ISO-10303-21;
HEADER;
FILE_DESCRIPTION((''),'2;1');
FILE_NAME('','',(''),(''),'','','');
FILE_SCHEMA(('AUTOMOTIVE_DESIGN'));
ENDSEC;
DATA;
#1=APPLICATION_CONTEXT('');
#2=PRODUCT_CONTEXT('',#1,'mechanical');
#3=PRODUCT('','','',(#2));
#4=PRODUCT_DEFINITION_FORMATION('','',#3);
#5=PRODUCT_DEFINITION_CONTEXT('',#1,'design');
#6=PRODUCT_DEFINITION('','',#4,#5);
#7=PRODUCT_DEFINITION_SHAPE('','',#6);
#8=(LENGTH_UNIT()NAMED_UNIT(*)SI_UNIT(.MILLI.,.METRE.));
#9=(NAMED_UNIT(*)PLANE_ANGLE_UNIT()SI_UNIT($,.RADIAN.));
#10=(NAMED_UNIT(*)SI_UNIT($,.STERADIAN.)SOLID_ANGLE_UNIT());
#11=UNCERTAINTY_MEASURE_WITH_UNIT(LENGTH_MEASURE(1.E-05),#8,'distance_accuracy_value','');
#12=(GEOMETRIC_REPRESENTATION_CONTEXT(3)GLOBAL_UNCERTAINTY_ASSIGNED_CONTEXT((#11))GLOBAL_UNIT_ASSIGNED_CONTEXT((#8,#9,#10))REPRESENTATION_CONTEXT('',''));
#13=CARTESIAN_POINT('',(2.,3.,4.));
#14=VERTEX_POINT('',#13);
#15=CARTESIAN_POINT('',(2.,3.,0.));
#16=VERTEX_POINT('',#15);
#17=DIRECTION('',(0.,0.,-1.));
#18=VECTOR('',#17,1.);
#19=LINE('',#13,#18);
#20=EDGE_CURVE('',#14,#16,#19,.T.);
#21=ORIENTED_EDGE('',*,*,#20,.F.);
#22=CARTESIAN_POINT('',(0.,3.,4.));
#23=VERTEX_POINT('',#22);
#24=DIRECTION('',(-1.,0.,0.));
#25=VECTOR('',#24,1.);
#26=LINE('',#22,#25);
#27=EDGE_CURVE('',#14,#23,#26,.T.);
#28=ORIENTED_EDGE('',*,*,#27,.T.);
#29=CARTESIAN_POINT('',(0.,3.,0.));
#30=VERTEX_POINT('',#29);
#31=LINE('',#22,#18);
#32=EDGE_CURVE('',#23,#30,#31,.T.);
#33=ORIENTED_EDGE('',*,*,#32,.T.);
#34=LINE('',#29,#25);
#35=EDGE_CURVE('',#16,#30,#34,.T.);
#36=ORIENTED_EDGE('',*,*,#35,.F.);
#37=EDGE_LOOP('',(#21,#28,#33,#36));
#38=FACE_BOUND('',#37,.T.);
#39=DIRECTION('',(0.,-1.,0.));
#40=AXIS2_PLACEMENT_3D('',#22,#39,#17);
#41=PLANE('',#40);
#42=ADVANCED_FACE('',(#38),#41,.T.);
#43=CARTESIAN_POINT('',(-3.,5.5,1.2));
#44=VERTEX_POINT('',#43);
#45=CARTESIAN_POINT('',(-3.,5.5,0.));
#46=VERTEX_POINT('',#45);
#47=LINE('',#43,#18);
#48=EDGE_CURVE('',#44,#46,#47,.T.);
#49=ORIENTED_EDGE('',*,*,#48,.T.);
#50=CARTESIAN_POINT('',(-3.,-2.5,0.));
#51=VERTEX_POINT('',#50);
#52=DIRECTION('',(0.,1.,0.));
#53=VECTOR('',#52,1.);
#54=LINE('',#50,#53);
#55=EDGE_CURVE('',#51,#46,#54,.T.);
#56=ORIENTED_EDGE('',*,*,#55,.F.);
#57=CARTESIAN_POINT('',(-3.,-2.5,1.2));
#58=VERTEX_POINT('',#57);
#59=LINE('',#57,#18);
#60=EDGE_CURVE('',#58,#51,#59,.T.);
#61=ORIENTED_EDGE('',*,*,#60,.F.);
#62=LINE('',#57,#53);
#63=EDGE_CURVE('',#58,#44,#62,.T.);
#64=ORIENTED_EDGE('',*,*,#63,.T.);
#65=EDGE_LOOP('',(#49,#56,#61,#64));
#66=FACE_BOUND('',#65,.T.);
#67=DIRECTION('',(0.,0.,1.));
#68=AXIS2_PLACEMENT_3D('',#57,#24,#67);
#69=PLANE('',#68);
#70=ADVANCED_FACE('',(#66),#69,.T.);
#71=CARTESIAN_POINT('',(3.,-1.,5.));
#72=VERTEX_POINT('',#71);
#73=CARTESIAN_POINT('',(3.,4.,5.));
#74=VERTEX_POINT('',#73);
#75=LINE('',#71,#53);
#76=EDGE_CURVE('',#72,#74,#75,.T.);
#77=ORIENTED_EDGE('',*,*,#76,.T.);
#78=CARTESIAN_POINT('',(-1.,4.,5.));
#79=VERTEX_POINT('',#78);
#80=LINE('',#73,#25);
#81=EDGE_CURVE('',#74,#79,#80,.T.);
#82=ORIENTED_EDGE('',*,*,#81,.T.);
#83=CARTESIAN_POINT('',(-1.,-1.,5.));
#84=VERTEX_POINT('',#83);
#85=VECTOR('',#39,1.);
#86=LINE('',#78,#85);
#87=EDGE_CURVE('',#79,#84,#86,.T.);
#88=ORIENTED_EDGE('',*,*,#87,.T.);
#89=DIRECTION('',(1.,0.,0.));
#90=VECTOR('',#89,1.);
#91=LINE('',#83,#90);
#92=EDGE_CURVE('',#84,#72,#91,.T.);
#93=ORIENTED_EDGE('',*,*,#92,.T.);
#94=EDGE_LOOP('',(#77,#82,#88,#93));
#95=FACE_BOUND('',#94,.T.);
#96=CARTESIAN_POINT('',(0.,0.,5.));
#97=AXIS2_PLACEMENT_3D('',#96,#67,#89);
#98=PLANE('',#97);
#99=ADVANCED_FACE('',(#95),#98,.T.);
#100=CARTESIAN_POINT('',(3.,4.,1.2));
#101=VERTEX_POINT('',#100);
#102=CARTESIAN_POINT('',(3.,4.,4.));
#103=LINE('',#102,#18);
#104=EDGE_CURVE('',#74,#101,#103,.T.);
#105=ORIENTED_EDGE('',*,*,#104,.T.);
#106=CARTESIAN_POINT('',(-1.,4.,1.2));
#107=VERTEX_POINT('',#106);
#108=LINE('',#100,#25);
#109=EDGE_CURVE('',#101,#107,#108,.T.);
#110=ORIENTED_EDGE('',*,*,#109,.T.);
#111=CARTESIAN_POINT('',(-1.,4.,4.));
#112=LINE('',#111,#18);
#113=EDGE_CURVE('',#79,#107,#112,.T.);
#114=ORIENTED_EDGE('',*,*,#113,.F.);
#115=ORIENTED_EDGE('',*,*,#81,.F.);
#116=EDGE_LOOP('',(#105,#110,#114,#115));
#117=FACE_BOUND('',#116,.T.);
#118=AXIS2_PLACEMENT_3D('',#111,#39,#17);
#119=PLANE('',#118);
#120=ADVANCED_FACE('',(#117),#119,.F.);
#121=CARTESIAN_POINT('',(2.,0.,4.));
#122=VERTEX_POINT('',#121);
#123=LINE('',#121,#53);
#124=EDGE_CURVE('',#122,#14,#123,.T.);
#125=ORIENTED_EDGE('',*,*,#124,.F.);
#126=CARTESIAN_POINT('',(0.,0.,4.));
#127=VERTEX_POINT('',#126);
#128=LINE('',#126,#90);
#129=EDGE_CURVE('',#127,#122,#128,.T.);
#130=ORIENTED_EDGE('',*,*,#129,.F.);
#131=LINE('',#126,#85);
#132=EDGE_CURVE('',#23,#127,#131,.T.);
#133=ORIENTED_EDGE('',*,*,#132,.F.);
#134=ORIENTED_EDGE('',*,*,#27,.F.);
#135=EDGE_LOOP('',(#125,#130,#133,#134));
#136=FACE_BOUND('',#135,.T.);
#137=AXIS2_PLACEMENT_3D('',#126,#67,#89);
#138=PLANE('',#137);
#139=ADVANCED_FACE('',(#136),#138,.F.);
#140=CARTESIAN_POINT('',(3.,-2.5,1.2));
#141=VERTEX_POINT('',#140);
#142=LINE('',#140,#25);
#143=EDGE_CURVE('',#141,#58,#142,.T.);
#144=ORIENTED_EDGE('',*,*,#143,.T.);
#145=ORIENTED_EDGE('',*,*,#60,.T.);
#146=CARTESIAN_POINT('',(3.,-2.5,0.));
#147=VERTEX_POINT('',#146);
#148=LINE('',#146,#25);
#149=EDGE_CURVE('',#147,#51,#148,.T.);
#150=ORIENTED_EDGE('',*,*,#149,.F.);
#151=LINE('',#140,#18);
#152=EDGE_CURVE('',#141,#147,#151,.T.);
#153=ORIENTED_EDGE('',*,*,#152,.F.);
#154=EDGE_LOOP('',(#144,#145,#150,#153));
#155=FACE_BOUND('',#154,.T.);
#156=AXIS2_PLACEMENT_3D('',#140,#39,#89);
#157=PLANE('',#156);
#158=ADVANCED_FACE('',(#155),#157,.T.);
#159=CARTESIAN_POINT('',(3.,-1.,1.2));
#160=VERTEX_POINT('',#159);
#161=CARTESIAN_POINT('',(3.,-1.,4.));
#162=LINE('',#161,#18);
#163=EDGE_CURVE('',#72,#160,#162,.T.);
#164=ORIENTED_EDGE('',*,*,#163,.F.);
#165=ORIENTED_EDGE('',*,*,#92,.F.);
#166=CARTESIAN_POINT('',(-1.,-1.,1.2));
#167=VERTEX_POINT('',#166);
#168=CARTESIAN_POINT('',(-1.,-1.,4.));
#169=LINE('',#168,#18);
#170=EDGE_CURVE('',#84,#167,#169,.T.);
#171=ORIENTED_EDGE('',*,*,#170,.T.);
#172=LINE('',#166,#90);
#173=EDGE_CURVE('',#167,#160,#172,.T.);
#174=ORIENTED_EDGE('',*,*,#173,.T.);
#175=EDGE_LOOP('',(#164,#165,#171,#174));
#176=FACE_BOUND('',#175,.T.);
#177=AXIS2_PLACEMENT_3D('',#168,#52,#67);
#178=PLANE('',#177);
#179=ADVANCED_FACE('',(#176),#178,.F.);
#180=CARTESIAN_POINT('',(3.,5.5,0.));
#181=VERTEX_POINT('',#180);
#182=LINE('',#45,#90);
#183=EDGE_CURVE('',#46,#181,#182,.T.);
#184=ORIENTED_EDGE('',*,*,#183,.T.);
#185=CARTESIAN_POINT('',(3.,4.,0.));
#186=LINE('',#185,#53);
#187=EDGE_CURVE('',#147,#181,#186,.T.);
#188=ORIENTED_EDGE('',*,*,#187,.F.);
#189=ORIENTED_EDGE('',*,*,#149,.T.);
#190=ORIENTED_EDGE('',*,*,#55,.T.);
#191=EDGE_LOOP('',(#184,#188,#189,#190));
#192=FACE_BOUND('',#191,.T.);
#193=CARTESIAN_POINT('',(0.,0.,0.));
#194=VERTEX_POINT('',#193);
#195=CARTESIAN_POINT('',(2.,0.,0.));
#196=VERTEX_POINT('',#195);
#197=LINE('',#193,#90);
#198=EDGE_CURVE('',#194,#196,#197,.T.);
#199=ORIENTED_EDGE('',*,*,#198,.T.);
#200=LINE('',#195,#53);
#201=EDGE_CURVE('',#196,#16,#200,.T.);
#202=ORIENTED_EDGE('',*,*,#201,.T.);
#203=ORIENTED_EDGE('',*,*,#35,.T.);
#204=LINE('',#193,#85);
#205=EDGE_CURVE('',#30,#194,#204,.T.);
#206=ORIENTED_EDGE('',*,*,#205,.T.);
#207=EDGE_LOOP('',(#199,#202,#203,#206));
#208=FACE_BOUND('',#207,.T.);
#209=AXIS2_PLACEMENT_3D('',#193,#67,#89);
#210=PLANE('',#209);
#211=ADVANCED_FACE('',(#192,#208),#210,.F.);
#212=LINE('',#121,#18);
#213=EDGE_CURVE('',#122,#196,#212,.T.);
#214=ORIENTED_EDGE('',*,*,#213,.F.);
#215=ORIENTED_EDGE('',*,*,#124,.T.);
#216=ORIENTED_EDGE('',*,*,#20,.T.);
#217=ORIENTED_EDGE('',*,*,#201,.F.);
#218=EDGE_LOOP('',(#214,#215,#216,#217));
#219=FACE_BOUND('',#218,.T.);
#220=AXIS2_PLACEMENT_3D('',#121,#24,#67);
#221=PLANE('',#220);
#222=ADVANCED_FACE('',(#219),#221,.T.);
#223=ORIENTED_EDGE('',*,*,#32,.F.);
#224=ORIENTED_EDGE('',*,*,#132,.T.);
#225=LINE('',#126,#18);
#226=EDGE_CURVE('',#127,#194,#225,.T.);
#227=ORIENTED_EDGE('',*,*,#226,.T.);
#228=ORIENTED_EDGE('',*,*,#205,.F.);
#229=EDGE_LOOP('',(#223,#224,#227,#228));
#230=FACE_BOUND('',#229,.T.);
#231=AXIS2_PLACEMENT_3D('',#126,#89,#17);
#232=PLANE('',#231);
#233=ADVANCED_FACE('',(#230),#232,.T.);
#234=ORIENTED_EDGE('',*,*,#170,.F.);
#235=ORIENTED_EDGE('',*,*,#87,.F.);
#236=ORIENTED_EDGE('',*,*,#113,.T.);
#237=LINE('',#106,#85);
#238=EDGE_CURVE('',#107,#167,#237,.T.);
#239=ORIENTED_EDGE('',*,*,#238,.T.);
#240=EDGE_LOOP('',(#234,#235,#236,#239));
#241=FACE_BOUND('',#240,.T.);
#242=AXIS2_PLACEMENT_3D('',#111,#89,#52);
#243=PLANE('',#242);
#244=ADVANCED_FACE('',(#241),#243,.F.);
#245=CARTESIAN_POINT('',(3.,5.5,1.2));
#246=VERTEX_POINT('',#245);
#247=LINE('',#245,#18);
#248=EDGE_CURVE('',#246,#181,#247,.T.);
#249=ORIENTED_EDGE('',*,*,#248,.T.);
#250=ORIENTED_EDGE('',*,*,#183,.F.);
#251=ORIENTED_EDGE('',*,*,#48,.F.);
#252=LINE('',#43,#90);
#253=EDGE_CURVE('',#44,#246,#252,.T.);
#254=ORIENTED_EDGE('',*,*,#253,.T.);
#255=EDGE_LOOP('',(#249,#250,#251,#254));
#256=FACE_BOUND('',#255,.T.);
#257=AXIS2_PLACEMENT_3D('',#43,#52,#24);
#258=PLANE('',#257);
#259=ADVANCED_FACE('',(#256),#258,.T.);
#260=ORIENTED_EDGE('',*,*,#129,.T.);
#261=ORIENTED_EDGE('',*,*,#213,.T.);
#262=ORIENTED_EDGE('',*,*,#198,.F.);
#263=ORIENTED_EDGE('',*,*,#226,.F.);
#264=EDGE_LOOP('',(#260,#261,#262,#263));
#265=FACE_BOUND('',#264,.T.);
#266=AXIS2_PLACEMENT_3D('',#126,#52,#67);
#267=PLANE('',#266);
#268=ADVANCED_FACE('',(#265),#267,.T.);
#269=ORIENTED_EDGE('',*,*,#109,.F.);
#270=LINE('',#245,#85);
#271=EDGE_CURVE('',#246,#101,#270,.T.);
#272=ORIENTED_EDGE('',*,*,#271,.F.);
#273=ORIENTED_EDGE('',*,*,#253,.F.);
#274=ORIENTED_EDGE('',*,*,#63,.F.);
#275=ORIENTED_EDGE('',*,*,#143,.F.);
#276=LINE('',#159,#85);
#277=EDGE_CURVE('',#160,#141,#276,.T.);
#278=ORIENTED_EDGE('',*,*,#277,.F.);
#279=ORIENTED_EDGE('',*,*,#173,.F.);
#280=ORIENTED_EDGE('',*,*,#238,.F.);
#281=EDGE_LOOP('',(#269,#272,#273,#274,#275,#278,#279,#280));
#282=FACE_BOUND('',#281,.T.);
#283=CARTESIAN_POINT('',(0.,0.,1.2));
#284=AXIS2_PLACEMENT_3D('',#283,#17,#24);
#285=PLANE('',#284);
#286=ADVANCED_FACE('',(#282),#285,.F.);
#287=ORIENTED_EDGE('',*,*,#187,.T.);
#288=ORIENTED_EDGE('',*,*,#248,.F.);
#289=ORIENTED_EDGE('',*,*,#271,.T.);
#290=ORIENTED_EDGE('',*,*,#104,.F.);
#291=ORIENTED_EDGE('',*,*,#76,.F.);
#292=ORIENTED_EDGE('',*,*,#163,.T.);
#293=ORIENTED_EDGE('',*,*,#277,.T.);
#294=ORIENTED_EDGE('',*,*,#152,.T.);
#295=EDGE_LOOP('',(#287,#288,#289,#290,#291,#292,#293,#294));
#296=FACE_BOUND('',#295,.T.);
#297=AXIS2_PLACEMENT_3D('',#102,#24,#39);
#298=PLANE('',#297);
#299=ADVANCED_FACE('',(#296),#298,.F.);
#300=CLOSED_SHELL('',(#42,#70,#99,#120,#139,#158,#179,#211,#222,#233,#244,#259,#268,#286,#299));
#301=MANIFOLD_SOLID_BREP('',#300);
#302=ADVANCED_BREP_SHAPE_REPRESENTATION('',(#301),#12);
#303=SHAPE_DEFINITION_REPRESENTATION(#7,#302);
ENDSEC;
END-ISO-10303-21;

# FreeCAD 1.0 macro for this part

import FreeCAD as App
import Part
import Sketcher
Q = App.Units.Quantity


def add_polygon(sketch, points):
    """Adds a closed chain of lines whose ends are joined by coincident constraints."""
    first, n = sketch.GeometryCount, len(points)
    for a, b in zip(points, points[1:] + points[:1]):
        sketch.addGeometry(Part.LineSegment(App.Vector(*a, 0), App.Vector(*b, 0)), False)
    for i in range(n):
        sketch.addConstraint(Sketcher.Constraint("Coincident", first + i, 2, first + (i + 1) % n, 1))

doc = App.newDocument("Part")
body = doc.addObject("PartDesign::Body", "Body")

# Sketch on XY plane
sketch1 = body.newObject("Sketcher::SketchObject", "Sketch")
sketch1.AttachmentSupport = (doc.getObject("XY_Plane"), [""])
sketch1.MapMode = "FlatFace"
add_polygon(sketch1, [(-1, 4), (-1, -1), (3, -1), (3, 4)])  # lines 0-3
add_polygon(sketch1, [(2, 0), (0, 0), (0, 3), (2, 3)])  # lines 4-7
sketch1.addConstraint([
    Sketcher.Constraint("Vertical", 0),
    Sketcher.Constraint("Horizontal", 1),
    Sketcher.Constraint("Vertical", 2),
    Sketcher.Constraint("Horizontal", 3),
    Sketcher.Constraint("Horizontal", 4),
    Sketcher.Constraint("Vertical", 5),
    Sketcher.Constraint("Horizontal", 6),
    Sketcher.Constraint("Vertical", 7),
    Sketcher.Constraint("Coincident", 4, 2, -1, 1),
    Sketcher.Constraint("DistanceX", 1, 1, 1, 2, Q("4 mm")),
    Sketcher.Constraint("DistanceX", 4, 2, 4, 1, Q("2 mm")),
    Sketcher.Constraint("DistanceY", 0, 2, 0, 1, Q("5 mm")),
    Sketcher.Constraint("DistanceY", 5, 1, 5, 2, Q("3 mm")),
    Sketcher.Constraint("DistanceX", 0, 2, -1, 1, Q("1 mm")),
    Sketcher.Constraint("DistanceY", 0, 2, -1, 1, Q("1 mm")),
])
pad1 = body.newObject("PartDesign::Pad", "Pad")
pad1.Profile = sketch1
pad1.Length = 4

# Sketch on XY plane
sketch2 = body.newObject("Sketcher::SketchObject", "Sketch001")
sketch2.AttachmentSupport = (doc.getObject("XY_Plane"), [""])
sketch2.MapMode = "FlatFace"
add_polygon(sketch2, [(3, 4), (-1, 4), (-1, -1), (3, -1), (3, -2.5), (-3, -2.5), (-3, 5.5), (3, 5.5)])  # lines 0-7
sketch2.addConstraint([
    Sketcher.Constraint("Horizontal", 0),
    Sketcher.Constraint("Vertical", 1),
    Sketcher.Constraint("Horizontal", 2),
    Sketcher.Constraint("Vertical", 3),
    Sketcher.Constraint("Horizontal", 4),
    Sketcher.Constraint("Vertical", 5),
    Sketcher.Constraint("Horizontal", 6),
    Sketcher.Constraint("Vertical", 7),
    Sketcher.Constraint("Vertical", 3, 2, 6, 2),
    Sketcher.Constraint("Equal", 3, 7),
    Sketcher.Constraint("DistanceX", 0, 2, 0, 1, Q("4 mm")),
    Sketcher.Constraint("DistanceX", 4, 2, 4, 1, Q("6 mm")),
    Sketcher.Constraint("DistanceY", 1, 2, 1, 1, Q("5 mm")),
    Sketcher.Constraint("DistanceY", 5, 1, 5, 2, Q("8 mm")),
    Sketcher.Constraint("DistanceX", 0, 2, -1, 1, Q("1 mm")),
    Sketcher.Constraint("DistanceY", -1, 1, 0, 2, Q("4 mm")),
])
pad2 = body.newObject("PartDesign::Pad", "Pad001")
pad2.Profile = sketch2
pad2.Length = 1.2

# Sketch on XY plane
sketch3 = body.newObject("Sketcher::SketchObject", "Sketch002")
sketch3.AttachmentSupport = (doc.getObject("XY_Plane"), [""])
sketch3.MapMode = "FlatFace"
sketch3.AttachmentOffset = App.Placement(App.Vector(0, 0, 4), App.Rotation())
add_polygon(sketch3, [(-1, 4), (-1, -1), (3, -1), (3, 4)])  # lines 0-3
sketch3.addConstraint([
    Sketcher.Constraint("Vertical", 0),
    Sketcher.Constraint("Horizontal", 1),
    Sketcher.Constraint("Vertical", 2),
    Sketcher.Constraint("Horizontal", 3),
    Sketcher.Constraint("DistanceX", 1, 1, 1, 2, Q("4 mm")),
    Sketcher.Constraint("DistanceY", 0, 2, 0, 1, Q("5 mm")),
    Sketcher.Constraint("DistanceX", 0, 2, -1, 1, Q("1 mm")),
    Sketcher.Constraint("DistanceY", 0, 2, -1, 1, Q("1 mm")),
])
pad3 = body.newObject("PartDesign::Pad", "Pad002")
pad3.Profile = sketch3
pad3.Length = 1

doc.recompute()
